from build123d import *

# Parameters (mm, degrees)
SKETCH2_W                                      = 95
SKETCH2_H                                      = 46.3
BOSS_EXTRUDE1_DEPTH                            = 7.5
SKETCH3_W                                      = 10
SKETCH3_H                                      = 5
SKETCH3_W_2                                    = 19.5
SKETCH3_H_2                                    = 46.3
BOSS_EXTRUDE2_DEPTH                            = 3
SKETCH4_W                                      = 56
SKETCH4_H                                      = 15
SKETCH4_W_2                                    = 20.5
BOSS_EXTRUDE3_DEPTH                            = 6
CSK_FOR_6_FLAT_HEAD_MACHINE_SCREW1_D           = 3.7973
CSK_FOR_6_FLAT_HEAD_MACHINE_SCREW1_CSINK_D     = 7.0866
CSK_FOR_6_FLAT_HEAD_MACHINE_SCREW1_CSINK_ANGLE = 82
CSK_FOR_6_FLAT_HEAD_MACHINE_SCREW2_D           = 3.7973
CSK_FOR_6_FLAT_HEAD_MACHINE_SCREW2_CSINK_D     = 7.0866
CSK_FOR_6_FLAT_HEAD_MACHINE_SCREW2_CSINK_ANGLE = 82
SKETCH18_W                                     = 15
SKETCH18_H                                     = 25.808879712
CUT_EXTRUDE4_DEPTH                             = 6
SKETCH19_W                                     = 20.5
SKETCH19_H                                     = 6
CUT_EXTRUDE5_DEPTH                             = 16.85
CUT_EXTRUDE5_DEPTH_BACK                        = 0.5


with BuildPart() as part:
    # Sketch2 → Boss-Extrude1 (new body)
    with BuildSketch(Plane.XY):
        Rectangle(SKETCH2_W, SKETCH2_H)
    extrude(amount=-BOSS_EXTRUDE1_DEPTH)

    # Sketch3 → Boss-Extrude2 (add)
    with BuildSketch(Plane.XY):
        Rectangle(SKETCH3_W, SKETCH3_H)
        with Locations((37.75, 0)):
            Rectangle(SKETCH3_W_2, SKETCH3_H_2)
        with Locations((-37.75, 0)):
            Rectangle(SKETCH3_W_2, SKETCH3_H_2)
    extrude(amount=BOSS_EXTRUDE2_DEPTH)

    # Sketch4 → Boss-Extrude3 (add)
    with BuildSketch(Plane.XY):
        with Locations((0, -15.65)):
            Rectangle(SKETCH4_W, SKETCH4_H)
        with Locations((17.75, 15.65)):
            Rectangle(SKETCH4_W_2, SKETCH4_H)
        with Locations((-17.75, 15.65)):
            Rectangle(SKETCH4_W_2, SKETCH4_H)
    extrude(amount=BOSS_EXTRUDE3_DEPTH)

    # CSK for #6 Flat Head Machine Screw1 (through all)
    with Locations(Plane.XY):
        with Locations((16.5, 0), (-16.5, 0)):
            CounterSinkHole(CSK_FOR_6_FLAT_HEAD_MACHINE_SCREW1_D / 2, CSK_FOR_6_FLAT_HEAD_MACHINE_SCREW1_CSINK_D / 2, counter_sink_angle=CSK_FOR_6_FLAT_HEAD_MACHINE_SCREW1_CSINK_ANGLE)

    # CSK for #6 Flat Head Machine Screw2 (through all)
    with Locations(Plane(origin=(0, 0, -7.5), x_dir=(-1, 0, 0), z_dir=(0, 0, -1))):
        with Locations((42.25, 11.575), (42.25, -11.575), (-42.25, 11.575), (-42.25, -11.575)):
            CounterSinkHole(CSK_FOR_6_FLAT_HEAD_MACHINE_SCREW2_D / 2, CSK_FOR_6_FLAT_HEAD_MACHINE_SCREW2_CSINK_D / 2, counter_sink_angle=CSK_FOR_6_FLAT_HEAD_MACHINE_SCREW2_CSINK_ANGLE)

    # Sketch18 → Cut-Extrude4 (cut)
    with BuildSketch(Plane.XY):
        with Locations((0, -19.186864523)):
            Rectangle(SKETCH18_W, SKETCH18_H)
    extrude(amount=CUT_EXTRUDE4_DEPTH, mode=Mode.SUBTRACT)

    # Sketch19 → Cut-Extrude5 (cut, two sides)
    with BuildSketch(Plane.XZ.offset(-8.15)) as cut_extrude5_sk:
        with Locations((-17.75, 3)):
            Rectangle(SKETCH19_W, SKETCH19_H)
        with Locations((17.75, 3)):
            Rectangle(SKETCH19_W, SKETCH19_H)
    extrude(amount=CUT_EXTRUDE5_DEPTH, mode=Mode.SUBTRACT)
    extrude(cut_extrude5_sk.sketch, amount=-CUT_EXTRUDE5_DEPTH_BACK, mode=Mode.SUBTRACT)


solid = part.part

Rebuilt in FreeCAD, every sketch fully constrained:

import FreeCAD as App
import Part
import Sketcher
Q = App.Units.Quantity


def add_polygon(sketch, points):
    """Adds a closed chain of lines whose ends are joined by coincident constraints."""
    first, n = sketch.GeometryCount, len(points)
    for a, b in zip(points, points[1:] + points[:1]):
        sketch.addGeometry(Part.LineSegment(App.Vector(*a, 0), App.Vector(*b, 0)), False)
    for i in range(n):
        sketch.addConstraint(Sketcher.Constraint("Coincident", first + i, 2, first + (i + 1) % n, 1))

doc = App.newDocument("Part")
params = doc.addObject("Spreadsheet::Sheet", "Params")
for row, (alias, value) in enumerate([
    ("sketch1_width", "95 mm"),
    ("sketch1_height", "46.3 mm"),
    ("pad1_length", "7.5 mm"),
    ("sketch2_width", "10 mm"),
    ("sketch2_height", "5 mm"),
    ("sketch2_width2", "19.5 mm"),
    ("sketch2_height2", "46.3 mm"),
    ("pad2_length", "3 mm"),
    ("sketch3_width", "56 mm"),
    ("sketch3_height", "15 mm"),
    ("sketch3_width2", "20.5 mm"),
    ("pad3_length", "6 mm"),
    ("hole_diameter", "3.7973 mm"),
    ("hole_csink_diameter", "7.0866 mm"),
    ("hole2_diameter", "3.7973 mm"),
    ("hole2_csink_diameter", "7.0866 mm"),
    ("sketch6_width", "15 mm"),
    ("pocket1_length", "6 mm"),
    ("sketch7_height", "6 mm"),
    ("sketch7_width", "20.5 mm"),
    ("pocket2_length", "16.85 mm"),
    ("pocket2_length2", "0.5 mm"),
], start=1):
    params.set(f"A{row}", alias)
    params.set(f"B{row}", "=" + value)
    params.setAlias(f"B{row}", alias)

body = doc.addObject("PartDesign::Body", "Body")

sketch1 = body.newObject("Sketcher::SketchObject", "Sketch")
sketch1.AttachmentSupport = (doc.getObject("XY_Plane"), [""])
sketch1.MapMode = "FlatFace"
add_polygon(sketch1, [(-47.5, 23.15), (-47.5, -23.15), (47.5, -23.15), (47.5, 23.15)])
sketch1.addConstraint(Sketcher.Constraint("Vertical", 0))
sketch1.addConstraint(Sketcher.Constraint("Horizontal", 1))
sketch1.addConstraint(Sketcher.Constraint("Vertical", 2))
sketch1.addConstraint(Sketcher.Constraint("Horizontal", 3))
sketch1.addConstraint(Sketcher.Constraint("Symmetric", 0, 2, 2, 2, -1, 1))
sketch1.addConstraint(Sketcher.Constraint("DistanceX", 1, 1, 1, 2, Q("95 mm")))
sketch1.addConstraint(Sketcher.Constraint("DistanceY", 0, 2, 0, 1, Q("46.3 mm")))
sketch1.setExpression("Constraints[9]", "Params.sketch1_width")
sketch1.setExpression("Constraints[10]", "Params.sketch1_height")
pad1 = body.newObject("PartDesign::Pad", "Pad")
pad1.Profile = sketch1
pad1.setExpression("Length", "Params.pad1_length")
pad1.Reversed = True

sketch2 = body.newObject("Sketcher::SketchObject", "Sketch001")
sketch2.AttachmentSupport = (doc.getObject("XY_Plane"), [""])
sketch2.MapMode = "FlatFace"
add_polygon(sketch2, [(-5, 2.5), (-5, -2.5), (5, -2.5), (5, 2.5)])
add_polygon(sketch2, [(28, 23.15), (28, -23.15), (47.5, -23.15), (47.5, 23.15)])
add_polygon(sketch2, [(-47.5, 23.15), (-47.5, -23.15), (-28, -23.15), (-28, 23.15)])
sketch2.addConstraint(Sketcher.Constraint("Vertical", 0))
sketch2.addConstraint(Sketcher.Constraint("Horizontal", 1))
sketch2.addConstraint(Sketcher.Constraint("Vertical", 2))
sketch2.addConstraint(Sketcher.Constraint("Horizontal", 3))
sketch2.addConstraint(Sketcher.Constraint("Vertical", 4))
sketch2.addConstraint(Sketcher.Constraint("Horizontal", 5))
sketch2.addConstraint(Sketcher.Constraint("Vertical", 6))
sketch2.addConstraint(Sketcher.Constraint("Horizontal", 7))
sketch2.addConstraint(Sketcher.Constraint("Vertical", 8))
sketch2.addConstraint(Sketcher.Constraint("Horizontal", 9))
sketch2.addConstraint(Sketcher.Constraint("Vertical", 10))
sketch2.addConstraint(Sketcher.Constraint("Horizontal", 11))
sketch2.addConstraint(Sketcher.Constraint("Symmetric", 0, 2, 2, 2, -1, 1))
sketch2.addConstraint(Sketcher.Constraint("Symmetric", 6, 2, 8, 2, -1, 1))
sketch2.addConstraint(Sketcher.Constraint("Symmetric", 4, 2, 10, 2, -1, 1))
sketch2.addConstraint(Sketcher.Constraint("Horizontal", 5, 2, 8, 2))
sketch2.addConstraint(Sketcher.Constraint("DistanceX", 1, 1, 1, 2, Q("10 mm")))
sketch2.addConstraint(Sketcher.Constraint("DistanceY", 0, 2, 0, 1, Q("5 mm")))
sketch2.addConstraint(Sketcher.Constraint("DistanceX", 5, 1, 5, 2, Q("19.5 mm")))
sketch2.addConstraint(Sketcher.Constraint("DistanceY", 4, 2, 4, 1, Q("46.3 mm")))
sketch2.addConstraint(Sketcher.Constraint("DistanceX", -1, 1, 4, 2, Q("28 mm")))
sketch2.setExpression("Constraints[28]", "Params.sketch2_width")
sketch2.setExpression("Constraints[29]", "Params.sketch2_height")
sketch2.setExpression("Constraints[30]", "Params.sketch2_width2")
sketch2.setExpression("Constraints[31]", "Params.sketch2_height2")
pad2 = body.newObject("PartDesign::Pad", "Pad001")
pad2.Profile = sketch2
pad2.setExpression("Length", "Params.pad2_length")

sketch3 = body.newObject("Sketcher::SketchObject", "Sketch002")
sketch3.AttachmentSupport = (doc.getObject("XY_Plane"), [""])
sketch3.MapMode = "FlatFace"
add_polygon(sketch3, [(-28, -8.15), (-28, -23.15), (28, -23.15), (28, -8.15)])
add_polygon(sketch3, [(7.5, 23.15), (7.5, 8.15), (28, 8.15), (28, 23.15)])
add_polygon(sketch3, [(-28, 23.15), (-28, 8.15), (-7.5, 8.15), (-7.5, 23.15)])
sketch3.addConstraint(Sketcher.Constraint("Vertical", 0))
sketch3.addConstraint(Sketcher.Constraint("Horizontal", 1))
sketch3.addConstraint(Sketcher.Constraint("Vertical", 2))
sketch3.addConstraint(Sketcher.Constraint("Horizontal", 3))
sketch3.addConstraint(Sketcher.Constraint("Vertical", 4))
sketch3.addConstraint(Sketcher.Constraint("Horizontal", 5))
sketch3.addConstraint(Sketcher.Constraint("Vertical", 6))
sketch3.addConstraint(Sketcher.Constraint("Horizontal", 7))
sketch3.addConstraint(Sketcher.Constraint("Vertical", 8))
sketch3.addConstraint(Sketcher.Constraint("Horizontal", 9))
sketch3.addConstraint(Sketcher.Constraint("Vertical", 10))
sketch3.addConstraint(Sketcher.Constraint("Horizontal", 11))
sketch3.addConstraint(Sketcher.Constraint("Symmetric", 3, 2, 5, 2, -1, 1))
sketch3.addConstraint(Sketcher.Constraint("Symmetric", 2, 2, 8, 2, -1, 1))
sketch3.addConstraint(Sketcher.Constraint("Symmetric", 7, 2, 10, 2, -2))
sketch3.addConstraint(Sketcher.Constraint("Symmetric", 1, 2, 6, 2, -1))
sketch3.addConstraint(Sketcher.Constraint("DistanceX", 1, 1, 1, 2, Q("56 mm")))
sketch3.addConstraint(Sketcher.Constraint("DistanceY", 0, 2, 0, 1, Q("15 mm")))
sketch3.addConstraint(Sketcher.Constraint("DistanceX", 5, 1, 5, 2, Q("20.5 mm")))
sketch3.addConstraint(Sketcher.Constraint("DistanceY", 2, 2, 4, 2, Q("16.3 mm")))
sketch3.setExpression("Constraints[28]", "Params.sketch3_width")
sketch3.setExpression("Constraints[29]", "Params.sketch3_height")
sketch3.setExpression("Constraints[30]", "Params.sketch3_width2")
pad3 = body.newObject("PartDesign::Pad", "Pad002")
pad3.Profile = sketch3
pad3.setExpression("Length", "Params.pad3_length")

sketch4 = body.newObject("Sketcher::SketchObject", "Sketch003")
sketch4.AttachmentSupport = (doc.getObject("XY_Plane"), [""])
sketch4.MapMode = "FlatFace"
sketch4.addGeometry(Part.Circle(App.Vector(16.5, 0, 0), App.Vector(0, 0, 1), 1.89865), False)
sketch4.addGeometry(Part.Circle(App.Vector(-16.5, 0, 0), App.Vector(0, 0, 1), 1.89865), False)
sketch4.addConstraint(Sketcher.Constraint("Equal", 0, 1))
sketch4.addConstraint(Sketcher.Constraint("Symmetric", 0, 3, 1, 3, -1, 1))
sketch4.addConstraint(Sketcher.Constraint("PointOnObject", 0, 3, -1))
sketch4.addConstraint(Sketcher.Constraint("DistanceX", 1, 3, 0, 3, Q("33 mm")))
sketch4.addConstraint(Sketcher.Constraint("Diameter", 0, Q("3.7973 mm")))
doc.recompute()
hole = body.newObject("PartDesign::Hole", "Hole")
hole.Profile = sketch4
hole.ThreadType = "None"
hole.setExpression("Diameter", "Params.hole_diameter")
hole.DepthType = "ThroughAll"
hole.HoleCutType = "Countersink"
hole.setExpression("HoleCutDiameter", "Params.hole_csink_diameter")
hole.HoleCutCountersinkAngle = 82

sketch5 = body.newObject("Sketcher::SketchObject", "Sketch004")
sketch5.AttachmentSupport = (doc.getObject("XY_Plane"), [""])
sketch5.MapMode = "FlatFace"
sketch5.AttachmentOffset = App.Placement(App.Vector(0, 0, -7.5), App.Rotation())
sketch5.addGeometry(Part.Circle(App.Vector(-42.25, 11.575, 0), App.Vector(0, 0, 1), 1.89865), False)
sketch5.addGeometry(Part.Circle(App.Vector(-42.25, -11.575, 0), App.Vector(0, 0, 1), 1.89865), False)
sketch5.addGeometry(Part.Circle(App.Vector(42.25, 11.575, 0), App.Vector(0, 0, 1), 1.89865), False)
sketch5.addGeometry(Part.Circle(App.Vector(42.25, -11.575, 0), App.Vector(0, 0, 1), 1.89865), False)
sketch5.addConstraint(Sketcher.Constraint("Equal", 0, 1))
sketch5.addConstraint(Sketcher.Constraint("Equal", 1, 2))
sketch5.addConstraint(Sketcher.Constraint("Equal", 2, 3))
sketch5.addConstraint(Sketcher.Constraint("Symmetric", 1, 3, 2, 3, -1, 1))
sketch5.addConstraint(Sketcher.Constraint("Symmetric", 0, 3, 3, 3, -1, 1))
sketch5.addConstraint(Sketcher.Constraint("Symmetric", 0, 3, 2, 3, -2))
sketch5.addConstraint(Sketcher.Constraint("Diameter", 0, Q("3.7973 mm")))
sketch5.addConstraint(Sketcher.Constraint("DistanceX", 0, 3, 2, 3, Q("84.5 mm")))
sketch5.addConstraint(Sketcher.Constraint("DistanceY", 1, 3, 0, 3, Q("23.15 mm")))
doc.recompute()
hole2 = body.newObject("PartDesign::Hole", "Hole001")
hole2.Profile = sketch5
hole2.ThreadType = "None"
hole2.setExpression("Diameter", "Params.hole2_diameter")
hole2.DepthType = "ThroughAll"
hole2.HoleCutType = "Countersink"
hole2.setExpression("HoleCutDiameter", "Params.hole2_csink_diameter")
hole2.HoleCutCountersinkAngle = 82
hole2.Reversed = True

sketch6 = body.newObject("Sketcher::SketchObject", "Sketch005")
sketch6.AttachmentSupport = (doc.getObject("XY_Plane"), [""])
sketch6.MapMode = "FlatFace"
add_polygon(sketch6, [(-7.5, -6.282425), (-7.5, -32.091304), (7.5, -32.091304), (7.5, -6.282425)])
sketch6.addConstraint(Sketcher.Constraint("Vertical", 0))
sketch6.addConstraint(Sketcher.Constraint("Horizontal", 1))
sketch6.addConstraint(Sketcher.Constraint("Vertical", 2))
sketch6.addConstraint(Sketcher.Constraint("Horizontal", 3))
sketch6.addConstraint(Sketcher.Constraint("DistanceX", 1, 1, 1, 2, Q("15 mm")))
sketch6.addConstraint(Sketcher.Constraint("DistanceX", 0, 2, -1, 1, Q("7.5 mm")))
sketch6.addConstraint(Sketcher.Constraint("DistanceY", 0, 2, 0, 1, Q("25.80888 mm")))
sketch6.addConstraint(Sketcher.Constraint("DistanceY", 0, 2, -1, 1, Q("32.091304 mm")))
sketch6.setExpression("Constraints[8]", "Params.sketch6_width")
pocket1 = body.newObject("PartDesign::Pocket", "Pocket")
pocket1.Profile = sketch6
pocket1.setExpression("Length", "Params.pocket1_length")
pocket1.Reversed = True

sketch7 = body.newObject("Sketcher::SketchObject", "Sketch006")
sketch7.AttachmentSupport = (doc.getObject("XZ_Plane"), [""])
sketch7.MapMode = "FlatFace"
sketch7.AttachmentOffset = App.Placement(App.Vector(0, 0, -8.15), App.Rotation())
add_polygon(sketch7, [(-28, 6), (-28, 0), (-7.5, 0), (-7.5, 6)])
add_polygon(sketch7, [(7.5, 6), (7.5, 0), (28, 0), (28, 6)])
sketch7.addConstraint(Sketcher.Constraint("Vertical", 0))
sketch7.addConstraint(Sketcher.Constraint("Horizontal", 1))
sketch7.addConstraint(Sketcher.Constraint("Vertical", 2))
sketch7.addConstraint(Sketcher.Constraint("Horizontal", 3))
sketch7.addConstraint(Sketcher.Constraint("Vertical", 4))
sketch7.addConstraint(Sketcher.Constraint("Horizontal", 5))
sketch7.addConstraint(Sketcher.Constraint("Vertical", 6))
sketch7.addConstraint(Sketcher.Constraint("Horizontal", 7))
sketch7.addConstraint(Sketcher.Constraint("Symmetric", 1, 2, 4, 2, -1, 1))
sketch7.addConstraint(Sketcher.Constraint("Symmetric", 0, 2, 5, 2, -2))
sketch7.addConstraint(Sketcher.Constraint("Horizontal", 3, 2, 6, 2))
sketch7.addConstraint(Sketcher.Constraint("DistanceY", 0, 2, 0, 1, Q("6 mm")))
sketch7.addConstraint(Sketcher.Constraint("DistanceX", 1, 1, 1, 2, Q("20.5 mm")))
sketch7.addConstraint(Sketcher.Constraint("DistanceX", 0, 2, -1, 1, Q("28 mm")))
sketch7.setExpression("Constraints[19]", "Params.sketch7_height")
sketch7.setExpression("Constraints[20]", "Params.sketch7_width")
pocket2 = body.newObject("PartDesign::Pocket", "Pocket001")
pocket2.Profile = sketch7
pocket2.Type = "TwoLengths"
pocket2.setExpression("Length", "Params.pocket2_length")
pocket2.setExpression("Length2", "Params.pocket2_length2")
pocket2.Reversed = True

doc.recompute()
